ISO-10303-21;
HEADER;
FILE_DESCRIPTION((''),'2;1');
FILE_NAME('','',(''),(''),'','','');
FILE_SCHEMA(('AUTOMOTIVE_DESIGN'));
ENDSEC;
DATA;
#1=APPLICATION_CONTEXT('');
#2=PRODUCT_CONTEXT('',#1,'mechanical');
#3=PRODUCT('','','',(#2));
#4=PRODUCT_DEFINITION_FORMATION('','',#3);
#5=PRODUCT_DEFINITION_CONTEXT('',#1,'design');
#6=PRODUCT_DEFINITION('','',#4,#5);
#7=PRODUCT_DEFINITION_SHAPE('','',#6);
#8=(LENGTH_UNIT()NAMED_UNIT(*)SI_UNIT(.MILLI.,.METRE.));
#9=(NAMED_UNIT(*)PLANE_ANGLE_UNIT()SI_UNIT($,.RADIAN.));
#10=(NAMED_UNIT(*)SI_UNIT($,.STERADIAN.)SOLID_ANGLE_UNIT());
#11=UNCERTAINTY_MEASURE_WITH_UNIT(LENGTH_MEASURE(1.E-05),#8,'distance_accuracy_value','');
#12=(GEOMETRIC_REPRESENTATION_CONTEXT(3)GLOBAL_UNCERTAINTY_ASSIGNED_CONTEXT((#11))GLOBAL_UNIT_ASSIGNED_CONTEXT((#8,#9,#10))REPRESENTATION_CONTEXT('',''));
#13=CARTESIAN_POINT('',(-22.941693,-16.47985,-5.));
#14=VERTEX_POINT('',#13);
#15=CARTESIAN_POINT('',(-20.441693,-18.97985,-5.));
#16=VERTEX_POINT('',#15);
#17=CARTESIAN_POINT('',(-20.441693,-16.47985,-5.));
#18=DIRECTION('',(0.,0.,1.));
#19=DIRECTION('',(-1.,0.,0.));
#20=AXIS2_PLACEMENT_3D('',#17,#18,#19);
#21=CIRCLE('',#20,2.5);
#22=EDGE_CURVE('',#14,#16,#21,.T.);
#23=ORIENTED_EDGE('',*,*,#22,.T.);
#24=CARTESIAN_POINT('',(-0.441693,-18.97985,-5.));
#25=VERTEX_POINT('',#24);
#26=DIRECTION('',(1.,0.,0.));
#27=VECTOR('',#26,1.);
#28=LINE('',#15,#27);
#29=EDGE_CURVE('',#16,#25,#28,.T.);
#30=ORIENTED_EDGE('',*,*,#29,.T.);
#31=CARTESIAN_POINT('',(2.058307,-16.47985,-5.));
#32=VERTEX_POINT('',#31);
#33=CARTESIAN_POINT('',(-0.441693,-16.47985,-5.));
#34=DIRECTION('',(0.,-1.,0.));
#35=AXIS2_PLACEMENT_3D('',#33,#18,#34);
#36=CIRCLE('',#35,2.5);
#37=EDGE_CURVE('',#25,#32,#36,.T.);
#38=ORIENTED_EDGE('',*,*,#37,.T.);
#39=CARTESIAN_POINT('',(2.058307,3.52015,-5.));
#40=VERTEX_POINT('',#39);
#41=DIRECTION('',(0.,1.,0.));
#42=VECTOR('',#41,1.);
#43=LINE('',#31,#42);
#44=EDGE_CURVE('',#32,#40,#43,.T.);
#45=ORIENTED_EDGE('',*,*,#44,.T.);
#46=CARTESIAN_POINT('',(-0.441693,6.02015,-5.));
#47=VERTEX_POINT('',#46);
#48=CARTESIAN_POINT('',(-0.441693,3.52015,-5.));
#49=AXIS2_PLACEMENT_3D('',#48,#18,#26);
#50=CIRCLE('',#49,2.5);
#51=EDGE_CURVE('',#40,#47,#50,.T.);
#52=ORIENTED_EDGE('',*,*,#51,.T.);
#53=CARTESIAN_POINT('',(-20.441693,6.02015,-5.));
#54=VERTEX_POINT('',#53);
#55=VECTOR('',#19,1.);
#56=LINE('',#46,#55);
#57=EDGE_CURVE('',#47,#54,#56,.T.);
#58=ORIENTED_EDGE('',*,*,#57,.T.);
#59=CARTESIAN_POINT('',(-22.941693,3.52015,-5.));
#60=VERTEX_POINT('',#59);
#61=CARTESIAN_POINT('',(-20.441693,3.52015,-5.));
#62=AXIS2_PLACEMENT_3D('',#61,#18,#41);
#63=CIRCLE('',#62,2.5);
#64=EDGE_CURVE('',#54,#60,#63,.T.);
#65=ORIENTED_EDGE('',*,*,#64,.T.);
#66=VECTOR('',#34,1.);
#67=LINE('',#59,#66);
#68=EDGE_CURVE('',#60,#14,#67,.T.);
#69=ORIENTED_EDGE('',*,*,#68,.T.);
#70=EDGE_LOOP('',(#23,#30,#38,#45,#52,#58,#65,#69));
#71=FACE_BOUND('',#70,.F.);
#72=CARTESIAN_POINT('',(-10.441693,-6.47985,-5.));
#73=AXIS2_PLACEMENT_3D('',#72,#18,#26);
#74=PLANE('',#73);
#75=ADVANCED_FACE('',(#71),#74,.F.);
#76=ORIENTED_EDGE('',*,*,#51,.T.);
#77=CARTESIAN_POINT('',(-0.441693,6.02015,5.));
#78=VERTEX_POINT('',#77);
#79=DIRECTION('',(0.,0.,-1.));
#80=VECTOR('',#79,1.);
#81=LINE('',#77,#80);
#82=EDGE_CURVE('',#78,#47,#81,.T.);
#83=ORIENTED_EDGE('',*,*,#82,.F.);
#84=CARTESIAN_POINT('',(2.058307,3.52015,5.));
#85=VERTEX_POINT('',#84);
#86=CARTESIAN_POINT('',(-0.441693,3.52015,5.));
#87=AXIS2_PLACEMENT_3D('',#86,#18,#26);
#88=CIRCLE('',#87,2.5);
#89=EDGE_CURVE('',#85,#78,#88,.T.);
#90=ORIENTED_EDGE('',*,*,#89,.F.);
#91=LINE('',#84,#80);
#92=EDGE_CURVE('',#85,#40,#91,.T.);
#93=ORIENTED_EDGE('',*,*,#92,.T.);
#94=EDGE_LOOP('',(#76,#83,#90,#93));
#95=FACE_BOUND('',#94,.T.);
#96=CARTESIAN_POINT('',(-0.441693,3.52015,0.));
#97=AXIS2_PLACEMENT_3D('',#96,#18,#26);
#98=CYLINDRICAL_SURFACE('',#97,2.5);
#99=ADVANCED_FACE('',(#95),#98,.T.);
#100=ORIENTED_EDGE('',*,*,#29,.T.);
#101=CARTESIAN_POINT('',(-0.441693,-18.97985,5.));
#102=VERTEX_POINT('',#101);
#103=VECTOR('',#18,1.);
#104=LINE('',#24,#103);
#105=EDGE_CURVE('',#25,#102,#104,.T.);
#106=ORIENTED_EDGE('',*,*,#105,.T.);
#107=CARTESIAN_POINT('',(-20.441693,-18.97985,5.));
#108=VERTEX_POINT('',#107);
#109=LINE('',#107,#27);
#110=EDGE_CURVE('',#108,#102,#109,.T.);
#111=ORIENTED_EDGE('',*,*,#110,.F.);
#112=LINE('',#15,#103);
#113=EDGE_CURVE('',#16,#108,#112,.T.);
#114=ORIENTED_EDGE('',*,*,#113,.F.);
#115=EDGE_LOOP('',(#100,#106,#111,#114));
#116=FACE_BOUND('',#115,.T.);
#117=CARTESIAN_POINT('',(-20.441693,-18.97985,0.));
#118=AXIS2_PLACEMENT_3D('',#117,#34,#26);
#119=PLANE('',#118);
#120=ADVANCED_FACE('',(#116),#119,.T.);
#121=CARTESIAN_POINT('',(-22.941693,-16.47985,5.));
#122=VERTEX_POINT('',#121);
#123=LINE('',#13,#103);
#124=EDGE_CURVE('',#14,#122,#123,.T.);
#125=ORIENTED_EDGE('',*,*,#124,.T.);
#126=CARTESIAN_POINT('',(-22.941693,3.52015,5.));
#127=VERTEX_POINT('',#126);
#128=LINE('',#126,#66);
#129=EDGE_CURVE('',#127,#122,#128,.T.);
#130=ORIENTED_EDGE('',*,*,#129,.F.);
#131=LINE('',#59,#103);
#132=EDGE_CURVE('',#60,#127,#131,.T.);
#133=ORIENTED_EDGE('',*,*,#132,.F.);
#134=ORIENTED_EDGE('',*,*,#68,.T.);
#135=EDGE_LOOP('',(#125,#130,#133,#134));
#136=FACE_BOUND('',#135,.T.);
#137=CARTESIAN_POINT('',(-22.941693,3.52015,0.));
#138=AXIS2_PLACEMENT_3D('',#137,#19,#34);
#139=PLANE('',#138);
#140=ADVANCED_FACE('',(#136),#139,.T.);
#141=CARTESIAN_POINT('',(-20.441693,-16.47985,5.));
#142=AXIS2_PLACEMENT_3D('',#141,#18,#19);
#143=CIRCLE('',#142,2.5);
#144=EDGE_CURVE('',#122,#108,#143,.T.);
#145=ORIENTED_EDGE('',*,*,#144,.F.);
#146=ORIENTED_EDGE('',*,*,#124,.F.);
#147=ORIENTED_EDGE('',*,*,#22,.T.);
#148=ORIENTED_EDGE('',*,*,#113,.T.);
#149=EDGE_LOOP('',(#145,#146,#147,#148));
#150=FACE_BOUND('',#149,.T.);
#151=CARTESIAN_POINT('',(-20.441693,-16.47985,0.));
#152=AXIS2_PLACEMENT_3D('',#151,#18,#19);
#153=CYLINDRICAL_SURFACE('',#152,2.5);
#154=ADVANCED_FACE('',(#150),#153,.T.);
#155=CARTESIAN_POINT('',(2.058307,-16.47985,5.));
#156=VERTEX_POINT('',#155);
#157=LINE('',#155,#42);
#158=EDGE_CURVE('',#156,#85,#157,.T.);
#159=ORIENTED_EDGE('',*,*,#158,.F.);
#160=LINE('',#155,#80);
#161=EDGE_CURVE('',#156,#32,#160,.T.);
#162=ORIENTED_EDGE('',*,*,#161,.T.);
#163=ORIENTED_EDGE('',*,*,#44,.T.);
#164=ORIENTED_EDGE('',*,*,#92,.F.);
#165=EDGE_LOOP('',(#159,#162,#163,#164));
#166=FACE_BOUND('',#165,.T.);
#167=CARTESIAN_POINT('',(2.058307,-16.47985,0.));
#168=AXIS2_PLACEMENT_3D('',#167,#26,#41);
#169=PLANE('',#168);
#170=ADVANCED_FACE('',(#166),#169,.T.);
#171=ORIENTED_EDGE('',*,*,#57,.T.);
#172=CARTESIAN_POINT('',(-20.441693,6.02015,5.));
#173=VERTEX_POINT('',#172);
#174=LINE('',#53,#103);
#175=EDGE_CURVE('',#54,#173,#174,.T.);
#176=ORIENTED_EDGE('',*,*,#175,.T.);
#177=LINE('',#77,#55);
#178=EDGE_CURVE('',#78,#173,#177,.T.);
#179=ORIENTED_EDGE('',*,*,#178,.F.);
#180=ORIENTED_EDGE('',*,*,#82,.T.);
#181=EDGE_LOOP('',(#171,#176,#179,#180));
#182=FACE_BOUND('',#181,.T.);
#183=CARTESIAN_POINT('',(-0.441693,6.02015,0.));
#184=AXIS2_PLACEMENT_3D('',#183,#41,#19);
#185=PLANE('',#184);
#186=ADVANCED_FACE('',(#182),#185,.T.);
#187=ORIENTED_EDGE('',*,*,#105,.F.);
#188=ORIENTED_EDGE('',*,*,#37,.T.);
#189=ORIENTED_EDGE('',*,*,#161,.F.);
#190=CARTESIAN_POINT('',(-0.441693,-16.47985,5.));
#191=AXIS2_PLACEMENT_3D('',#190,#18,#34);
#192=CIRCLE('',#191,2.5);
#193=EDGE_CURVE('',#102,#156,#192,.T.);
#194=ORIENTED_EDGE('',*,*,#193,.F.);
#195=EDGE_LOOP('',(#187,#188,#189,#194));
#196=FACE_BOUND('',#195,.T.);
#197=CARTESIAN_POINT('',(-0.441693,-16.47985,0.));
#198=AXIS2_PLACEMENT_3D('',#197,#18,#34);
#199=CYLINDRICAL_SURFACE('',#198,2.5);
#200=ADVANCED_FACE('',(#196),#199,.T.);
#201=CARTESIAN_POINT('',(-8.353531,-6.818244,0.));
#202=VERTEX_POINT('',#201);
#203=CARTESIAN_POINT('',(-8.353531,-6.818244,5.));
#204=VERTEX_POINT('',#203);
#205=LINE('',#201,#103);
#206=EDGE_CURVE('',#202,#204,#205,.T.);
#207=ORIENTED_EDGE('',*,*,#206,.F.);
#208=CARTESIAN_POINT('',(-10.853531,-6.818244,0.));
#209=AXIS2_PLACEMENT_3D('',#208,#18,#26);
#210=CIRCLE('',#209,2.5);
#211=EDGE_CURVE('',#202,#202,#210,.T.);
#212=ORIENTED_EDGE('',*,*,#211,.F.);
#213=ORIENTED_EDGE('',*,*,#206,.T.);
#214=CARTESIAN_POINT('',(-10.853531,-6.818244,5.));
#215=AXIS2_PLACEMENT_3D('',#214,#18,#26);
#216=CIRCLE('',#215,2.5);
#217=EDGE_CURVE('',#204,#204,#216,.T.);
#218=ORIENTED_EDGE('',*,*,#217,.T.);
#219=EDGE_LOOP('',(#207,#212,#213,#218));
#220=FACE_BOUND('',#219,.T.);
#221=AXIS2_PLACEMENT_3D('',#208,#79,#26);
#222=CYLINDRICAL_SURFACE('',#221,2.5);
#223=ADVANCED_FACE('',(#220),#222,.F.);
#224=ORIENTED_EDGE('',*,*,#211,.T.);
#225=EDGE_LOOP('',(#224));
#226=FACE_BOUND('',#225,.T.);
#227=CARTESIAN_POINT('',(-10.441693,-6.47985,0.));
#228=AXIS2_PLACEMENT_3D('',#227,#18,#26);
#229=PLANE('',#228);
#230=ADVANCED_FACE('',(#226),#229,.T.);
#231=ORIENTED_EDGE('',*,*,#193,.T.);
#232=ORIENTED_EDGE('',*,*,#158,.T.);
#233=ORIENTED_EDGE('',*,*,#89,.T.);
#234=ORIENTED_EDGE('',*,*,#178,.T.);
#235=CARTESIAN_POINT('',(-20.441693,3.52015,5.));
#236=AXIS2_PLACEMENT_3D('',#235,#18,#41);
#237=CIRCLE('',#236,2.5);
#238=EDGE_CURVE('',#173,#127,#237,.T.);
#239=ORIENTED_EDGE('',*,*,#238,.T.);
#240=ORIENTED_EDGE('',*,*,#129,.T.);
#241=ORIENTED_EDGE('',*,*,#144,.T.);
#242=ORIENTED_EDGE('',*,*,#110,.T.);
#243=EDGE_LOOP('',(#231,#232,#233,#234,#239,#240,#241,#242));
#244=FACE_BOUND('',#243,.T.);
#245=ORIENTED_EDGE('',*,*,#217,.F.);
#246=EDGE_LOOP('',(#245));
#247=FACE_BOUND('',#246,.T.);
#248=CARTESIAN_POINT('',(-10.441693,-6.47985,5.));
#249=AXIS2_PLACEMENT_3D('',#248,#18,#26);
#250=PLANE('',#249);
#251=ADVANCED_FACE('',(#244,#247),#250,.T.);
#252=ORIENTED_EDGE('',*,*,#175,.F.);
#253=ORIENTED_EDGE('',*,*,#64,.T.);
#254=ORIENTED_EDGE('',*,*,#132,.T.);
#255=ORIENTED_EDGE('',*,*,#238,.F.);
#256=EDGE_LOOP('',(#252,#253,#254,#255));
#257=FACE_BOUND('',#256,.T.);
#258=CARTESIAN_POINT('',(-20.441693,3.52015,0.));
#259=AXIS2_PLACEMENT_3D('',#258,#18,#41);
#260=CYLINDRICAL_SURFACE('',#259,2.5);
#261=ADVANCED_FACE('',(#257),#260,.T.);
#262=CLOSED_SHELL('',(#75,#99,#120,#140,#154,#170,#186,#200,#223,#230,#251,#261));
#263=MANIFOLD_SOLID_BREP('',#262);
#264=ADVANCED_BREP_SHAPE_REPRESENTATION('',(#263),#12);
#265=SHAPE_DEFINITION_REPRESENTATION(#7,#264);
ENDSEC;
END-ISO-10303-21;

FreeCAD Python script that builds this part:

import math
import FreeCAD as App
import Part
import Sketcher

V = App.Vector
Q = App.Units.Quantity

doc = App.newDocument("Part")
params = doc.addObject("Spreadsheet::Sheet", "Params")
for row, (alias, value) in enumerate([
    ("sketch1_diameter", "5 mm"),
    ("sketch1_width", "20 mm"),
    ("pad1_length", "5 mm"),
    ("sketch2_radius", "2.5 mm"),
    ("sketch2_width", "20 mm"),
    ("pad2_length", "5 mm"),
], start=1):
    params.set(f"A{row}", alias)
    params.set(f"B{row}", "=" + value)
    params.setAlias(f"B{row}", alias)

body = doc.addObject("PartDesign::Body", "Body")

# Sketch on XY plane
sketch1 = doc.addObject("Sketcher::SketchObject", "Sketch")
body.addObject(sketch1)
sketch1.AttachmentSupport = (doc.XY_Plane, [""])
sketch1.MapMode = "FlatFace"
sketch1.addGeometry(Part.LineSegment(V(-0.441693, 6.02015, 0), V(-20.441693, 6.02015, 0)), False)
sketch1.addGeometry(Part.ArcOfCircle(Part.Circle(V(-20.441693, 3.52015, 0), V(0, 0, 1), 2.5), math.radians(90), math.radians(180)), False)
sketch1.addGeometry(Part.LineSegment(V(-22.941693, 3.52015, 0), V(-22.941693, -16.47985, 0)), False)
sketch1.addGeometry(Part.ArcOfCircle(Part.Circle(V(-20.441693, -16.47985, 0), V(0, 0, 1), 2.5), math.radians(180), math.radians(270)), False)
sketch1.addGeometry(Part.LineSegment(V(-20.441693, -18.97985, 0), V(-0.441693, -18.97985, 0)), False)
sketch1.addGeometry(Part.ArcOfCircle(Part.Circle(V(-0.441693, -16.47985, 0), V(0, 0, 1), 2.5), math.radians(-90), math.radians(0)), False)
sketch1.addGeometry(Part.LineSegment(V(2.058307, -16.47985, 0), V(2.058307, 3.52015, 0)), False)
sketch1.addGeometry(Part.ArcOfCircle(Part.Circle(V(-0.441693, 3.52015, 0), V(0, 0, 1), 2.5), math.radians(0), math.radians(90)), False)
sketch1.addGeometry(Part.Circle(V(-10.853531, -6.818244, 0), V(0, 0, 1), 2.5), False)
sketch1.addConstraint(Sketcher.Constraint("Tangent", 0, 2, 1, 1))
sketch1.addConstraint(Sketcher.Constraint("Tangent", 1, 2, 2, 1))
sketch1.addConstraint(Sketcher.Constraint("Tangent", 2, 2, 3, 1))
sketch1.addConstraint(Sketcher.Constraint("Tangent", 3, 2, 4, 1))
sketch1.addConstraint(Sketcher.Constraint("Tangent", 4, 2, 5, 1))
sketch1.addConstraint(Sketcher.Constraint("Tangent", 5, 2, 6, 1))
sketch1.addConstraint(Sketcher.Constraint("Tangent", 6, 2, 7, 1))
sketch1.addConstraint(Sketcher.Constraint("Tangent", 7, 2, 0, 1))
sketch1.addConstraint(Sketcher.Constraint("Horizontal", 0))
sketch1.addConstraint(Sketcher.Constraint("Vertical", 2))
sketch1.addConstraint(Sketcher.Constraint("Horizontal", 4))
sketch1.addConstraint(Sketcher.Constraint("Vertical", 6))
sketch1.addConstraint(Sketcher.Constraint("Equal", 1, 3))
sketch1.addConstraint(Sketcher.Constraint("Equal", 3, 5))
sketch1.addConstraint(Sketcher.Constraint("Equal", 5, 7))
sketch1.addConstraint(Sketcher.Constraint("Equal", 7, 8))
sketch1.addConstraint(Sketcher.Constraint("Equal", 4, 2))
sketch1.addConstraint(Sketcher.Constraint("Diameter", 8, Q("5 mm")))
sketch1.addConstraint(Sketcher.Constraint("DistanceX", 0, 2, 0, 1, Q("20 mm")))
sketch1.addConstraint(Sketcher.Constraint("DistanceY", -1, 1, 1, 3, Q("3.52015 mm")))
sketch1.addConstraint(Sketcher.Constraint("DistanceX", 8, 3, -1, 1, Q("10.853531 mm")))
sketch1.addConstraint(Sketcher.Constraint("DistanceX", 1, 3, -1, 1, Q("20.441693 mm")))
sketch1.addConstraint(Sketcher.Constraint("DistanceY", 8, 3, -1, 1, Q("6.818244 mm")))
sketch1.setExpression("Constraints[17]", "Params.sketch1_diameter")
sketch1.setExpression("Constraints[18]", "Params.sketch1_width")
pad1 = doc.addObject("PartDesign::Pad", "Pad")
body.addObject(pad1)
pad1.Profile = sketch1
pad1.setExpression("Length", "Params.pad1_length")

# Sketch on XY plane
sketch2 = doc.addObject("Sketcher::SketchObject", "Sketch001")
body.addObject(sketch2)
sketch2.AttachmentSupport = (doc.XY_Plane, [""])
sketch2.MapMode = "FlatFace"
sketch2.addGeometry(Part.LineSegment(V(-0.441693, 6.02015, 0), V(-20.441693, 6.02015, 0)), False)
sketch2.addGeometry(Part.ArcOfCircle(Part.Circle(V(-20.441693, 3.52015, 0), V(0, 0, 1), 2.5), math.radians(90), math.radians(180)), False)
sketch2.addGeometry(Part.LineSegment(V(-22.941693, 3.52015, 0), V(-22.941693, -16.47985, 0)), False)
sketch2.addGeometry(Part.ArcOfCircle(Part.Circle(V(-20.441693, -16.47985, 0), V(0, 0, 1), 2.5), math.radians(180), math.radians(270)), False)
sketch2.addGeometry(Part.LineSegment(V(-20.441693, -18.97985, 0), V(-0.441693, -18.97985, 0)), False)
sketch2.addGeometry(Part.ArcOfCircle(Part.Circle(V(-0.441693, -16.47985, 0), V(0, 0, 1), 2.5), math.radians(-90), math.radians(0)), False)
sketch2.addGeometry(Part.LineSegment(V(2.058307, -16.47985, 0), V(2.058307, 3.52015, 0)), False)
sketch2.addGeometry(Part.ArcOfCircle(Part.Circle(V(-0.441693, 3.52015, 0), V(0, 0, 1), 2.5), math.radians(0), math.radians(90)), False)
sketch2.addConstraint(Sketcher.Constraint("Tangent", 0, 2, 1, 1))
sketch2.addConstraint(Sketcher.Constraint("Tangent", 1, 2, 2, 1))
sketch2.addConstraint(Sketcher.Constraint("Tangent", 2, 2, 3, 1))
sketch2.addConstraint(Sketcher.Constraint("Tangent", 3, 2, 4, 1))
sketch2.addConstraint(Sketcher.Constraint("Tangent", 4, 2, 5, 1))
sketch2.addConstraint(Sketcher.Constraint("Tangent", 5, 2, 6, 1))
sketch2.addConstraint(Sketcher.Constraint("Tangent", 6, 2, 7, 1))
sketch2.addConstraint(Sketcher.Constraint("Tangent", 7, 2, 0, 1))
sketch2.addConstraint(Sketcher.Constraint("Horizontal", 0))
sketch2.addConstraint(Sketcher.Constraint("Vertical", 2))
sketch2.addConstraint(Sketcher.Constraint("Horizontal", 4))
sketch2.addConstraint(Sketcher.Constraint("Vertical", 6))
sketch2.addConstraint(Sketcher.Constraint("Equal", 1, 3))
sketch2.addConstraint(Sketcher.Constraint("Equal", 3, 5))
sketch2.addConstraint(Sketcher.Constraint("Equal", 5, 7))
sketch2.addConstraint(Sketcher.Constraint("Equal", 4, 2))
sketch2.addConstraint(Sketcher.Constraint("Radius", 1, Q("2.5 mm")))
sketch2.addConstraint(Sketcher.Constraint("DistanceX", 0, 2, 0, 1, Q("20 mm")))
sketch2.addConstraint(Sketcher.Constraint("DistanceY", -1, 1, 1, 3, Q("3.52015 mm")))
sketch2.addConstraint(Sketcher.Constraint("DistanceX", 1, 3, -1, 1, Q("20.441693 mm")))
sketch2.setExpression("Constraints[16]", "Params.sketch2_radius")
sketch2.setExpression("Constraints[17]", "Params.sketch2_width")
pad2 = doc.addObject("PartDesign::Pad", "Pad001")
body.addObject(pad2)
pad2.Profile = sketch2
pad2.setExpression("Length", "Params.pad2_length")
pad2.Reversed = True

doc.recompute()
